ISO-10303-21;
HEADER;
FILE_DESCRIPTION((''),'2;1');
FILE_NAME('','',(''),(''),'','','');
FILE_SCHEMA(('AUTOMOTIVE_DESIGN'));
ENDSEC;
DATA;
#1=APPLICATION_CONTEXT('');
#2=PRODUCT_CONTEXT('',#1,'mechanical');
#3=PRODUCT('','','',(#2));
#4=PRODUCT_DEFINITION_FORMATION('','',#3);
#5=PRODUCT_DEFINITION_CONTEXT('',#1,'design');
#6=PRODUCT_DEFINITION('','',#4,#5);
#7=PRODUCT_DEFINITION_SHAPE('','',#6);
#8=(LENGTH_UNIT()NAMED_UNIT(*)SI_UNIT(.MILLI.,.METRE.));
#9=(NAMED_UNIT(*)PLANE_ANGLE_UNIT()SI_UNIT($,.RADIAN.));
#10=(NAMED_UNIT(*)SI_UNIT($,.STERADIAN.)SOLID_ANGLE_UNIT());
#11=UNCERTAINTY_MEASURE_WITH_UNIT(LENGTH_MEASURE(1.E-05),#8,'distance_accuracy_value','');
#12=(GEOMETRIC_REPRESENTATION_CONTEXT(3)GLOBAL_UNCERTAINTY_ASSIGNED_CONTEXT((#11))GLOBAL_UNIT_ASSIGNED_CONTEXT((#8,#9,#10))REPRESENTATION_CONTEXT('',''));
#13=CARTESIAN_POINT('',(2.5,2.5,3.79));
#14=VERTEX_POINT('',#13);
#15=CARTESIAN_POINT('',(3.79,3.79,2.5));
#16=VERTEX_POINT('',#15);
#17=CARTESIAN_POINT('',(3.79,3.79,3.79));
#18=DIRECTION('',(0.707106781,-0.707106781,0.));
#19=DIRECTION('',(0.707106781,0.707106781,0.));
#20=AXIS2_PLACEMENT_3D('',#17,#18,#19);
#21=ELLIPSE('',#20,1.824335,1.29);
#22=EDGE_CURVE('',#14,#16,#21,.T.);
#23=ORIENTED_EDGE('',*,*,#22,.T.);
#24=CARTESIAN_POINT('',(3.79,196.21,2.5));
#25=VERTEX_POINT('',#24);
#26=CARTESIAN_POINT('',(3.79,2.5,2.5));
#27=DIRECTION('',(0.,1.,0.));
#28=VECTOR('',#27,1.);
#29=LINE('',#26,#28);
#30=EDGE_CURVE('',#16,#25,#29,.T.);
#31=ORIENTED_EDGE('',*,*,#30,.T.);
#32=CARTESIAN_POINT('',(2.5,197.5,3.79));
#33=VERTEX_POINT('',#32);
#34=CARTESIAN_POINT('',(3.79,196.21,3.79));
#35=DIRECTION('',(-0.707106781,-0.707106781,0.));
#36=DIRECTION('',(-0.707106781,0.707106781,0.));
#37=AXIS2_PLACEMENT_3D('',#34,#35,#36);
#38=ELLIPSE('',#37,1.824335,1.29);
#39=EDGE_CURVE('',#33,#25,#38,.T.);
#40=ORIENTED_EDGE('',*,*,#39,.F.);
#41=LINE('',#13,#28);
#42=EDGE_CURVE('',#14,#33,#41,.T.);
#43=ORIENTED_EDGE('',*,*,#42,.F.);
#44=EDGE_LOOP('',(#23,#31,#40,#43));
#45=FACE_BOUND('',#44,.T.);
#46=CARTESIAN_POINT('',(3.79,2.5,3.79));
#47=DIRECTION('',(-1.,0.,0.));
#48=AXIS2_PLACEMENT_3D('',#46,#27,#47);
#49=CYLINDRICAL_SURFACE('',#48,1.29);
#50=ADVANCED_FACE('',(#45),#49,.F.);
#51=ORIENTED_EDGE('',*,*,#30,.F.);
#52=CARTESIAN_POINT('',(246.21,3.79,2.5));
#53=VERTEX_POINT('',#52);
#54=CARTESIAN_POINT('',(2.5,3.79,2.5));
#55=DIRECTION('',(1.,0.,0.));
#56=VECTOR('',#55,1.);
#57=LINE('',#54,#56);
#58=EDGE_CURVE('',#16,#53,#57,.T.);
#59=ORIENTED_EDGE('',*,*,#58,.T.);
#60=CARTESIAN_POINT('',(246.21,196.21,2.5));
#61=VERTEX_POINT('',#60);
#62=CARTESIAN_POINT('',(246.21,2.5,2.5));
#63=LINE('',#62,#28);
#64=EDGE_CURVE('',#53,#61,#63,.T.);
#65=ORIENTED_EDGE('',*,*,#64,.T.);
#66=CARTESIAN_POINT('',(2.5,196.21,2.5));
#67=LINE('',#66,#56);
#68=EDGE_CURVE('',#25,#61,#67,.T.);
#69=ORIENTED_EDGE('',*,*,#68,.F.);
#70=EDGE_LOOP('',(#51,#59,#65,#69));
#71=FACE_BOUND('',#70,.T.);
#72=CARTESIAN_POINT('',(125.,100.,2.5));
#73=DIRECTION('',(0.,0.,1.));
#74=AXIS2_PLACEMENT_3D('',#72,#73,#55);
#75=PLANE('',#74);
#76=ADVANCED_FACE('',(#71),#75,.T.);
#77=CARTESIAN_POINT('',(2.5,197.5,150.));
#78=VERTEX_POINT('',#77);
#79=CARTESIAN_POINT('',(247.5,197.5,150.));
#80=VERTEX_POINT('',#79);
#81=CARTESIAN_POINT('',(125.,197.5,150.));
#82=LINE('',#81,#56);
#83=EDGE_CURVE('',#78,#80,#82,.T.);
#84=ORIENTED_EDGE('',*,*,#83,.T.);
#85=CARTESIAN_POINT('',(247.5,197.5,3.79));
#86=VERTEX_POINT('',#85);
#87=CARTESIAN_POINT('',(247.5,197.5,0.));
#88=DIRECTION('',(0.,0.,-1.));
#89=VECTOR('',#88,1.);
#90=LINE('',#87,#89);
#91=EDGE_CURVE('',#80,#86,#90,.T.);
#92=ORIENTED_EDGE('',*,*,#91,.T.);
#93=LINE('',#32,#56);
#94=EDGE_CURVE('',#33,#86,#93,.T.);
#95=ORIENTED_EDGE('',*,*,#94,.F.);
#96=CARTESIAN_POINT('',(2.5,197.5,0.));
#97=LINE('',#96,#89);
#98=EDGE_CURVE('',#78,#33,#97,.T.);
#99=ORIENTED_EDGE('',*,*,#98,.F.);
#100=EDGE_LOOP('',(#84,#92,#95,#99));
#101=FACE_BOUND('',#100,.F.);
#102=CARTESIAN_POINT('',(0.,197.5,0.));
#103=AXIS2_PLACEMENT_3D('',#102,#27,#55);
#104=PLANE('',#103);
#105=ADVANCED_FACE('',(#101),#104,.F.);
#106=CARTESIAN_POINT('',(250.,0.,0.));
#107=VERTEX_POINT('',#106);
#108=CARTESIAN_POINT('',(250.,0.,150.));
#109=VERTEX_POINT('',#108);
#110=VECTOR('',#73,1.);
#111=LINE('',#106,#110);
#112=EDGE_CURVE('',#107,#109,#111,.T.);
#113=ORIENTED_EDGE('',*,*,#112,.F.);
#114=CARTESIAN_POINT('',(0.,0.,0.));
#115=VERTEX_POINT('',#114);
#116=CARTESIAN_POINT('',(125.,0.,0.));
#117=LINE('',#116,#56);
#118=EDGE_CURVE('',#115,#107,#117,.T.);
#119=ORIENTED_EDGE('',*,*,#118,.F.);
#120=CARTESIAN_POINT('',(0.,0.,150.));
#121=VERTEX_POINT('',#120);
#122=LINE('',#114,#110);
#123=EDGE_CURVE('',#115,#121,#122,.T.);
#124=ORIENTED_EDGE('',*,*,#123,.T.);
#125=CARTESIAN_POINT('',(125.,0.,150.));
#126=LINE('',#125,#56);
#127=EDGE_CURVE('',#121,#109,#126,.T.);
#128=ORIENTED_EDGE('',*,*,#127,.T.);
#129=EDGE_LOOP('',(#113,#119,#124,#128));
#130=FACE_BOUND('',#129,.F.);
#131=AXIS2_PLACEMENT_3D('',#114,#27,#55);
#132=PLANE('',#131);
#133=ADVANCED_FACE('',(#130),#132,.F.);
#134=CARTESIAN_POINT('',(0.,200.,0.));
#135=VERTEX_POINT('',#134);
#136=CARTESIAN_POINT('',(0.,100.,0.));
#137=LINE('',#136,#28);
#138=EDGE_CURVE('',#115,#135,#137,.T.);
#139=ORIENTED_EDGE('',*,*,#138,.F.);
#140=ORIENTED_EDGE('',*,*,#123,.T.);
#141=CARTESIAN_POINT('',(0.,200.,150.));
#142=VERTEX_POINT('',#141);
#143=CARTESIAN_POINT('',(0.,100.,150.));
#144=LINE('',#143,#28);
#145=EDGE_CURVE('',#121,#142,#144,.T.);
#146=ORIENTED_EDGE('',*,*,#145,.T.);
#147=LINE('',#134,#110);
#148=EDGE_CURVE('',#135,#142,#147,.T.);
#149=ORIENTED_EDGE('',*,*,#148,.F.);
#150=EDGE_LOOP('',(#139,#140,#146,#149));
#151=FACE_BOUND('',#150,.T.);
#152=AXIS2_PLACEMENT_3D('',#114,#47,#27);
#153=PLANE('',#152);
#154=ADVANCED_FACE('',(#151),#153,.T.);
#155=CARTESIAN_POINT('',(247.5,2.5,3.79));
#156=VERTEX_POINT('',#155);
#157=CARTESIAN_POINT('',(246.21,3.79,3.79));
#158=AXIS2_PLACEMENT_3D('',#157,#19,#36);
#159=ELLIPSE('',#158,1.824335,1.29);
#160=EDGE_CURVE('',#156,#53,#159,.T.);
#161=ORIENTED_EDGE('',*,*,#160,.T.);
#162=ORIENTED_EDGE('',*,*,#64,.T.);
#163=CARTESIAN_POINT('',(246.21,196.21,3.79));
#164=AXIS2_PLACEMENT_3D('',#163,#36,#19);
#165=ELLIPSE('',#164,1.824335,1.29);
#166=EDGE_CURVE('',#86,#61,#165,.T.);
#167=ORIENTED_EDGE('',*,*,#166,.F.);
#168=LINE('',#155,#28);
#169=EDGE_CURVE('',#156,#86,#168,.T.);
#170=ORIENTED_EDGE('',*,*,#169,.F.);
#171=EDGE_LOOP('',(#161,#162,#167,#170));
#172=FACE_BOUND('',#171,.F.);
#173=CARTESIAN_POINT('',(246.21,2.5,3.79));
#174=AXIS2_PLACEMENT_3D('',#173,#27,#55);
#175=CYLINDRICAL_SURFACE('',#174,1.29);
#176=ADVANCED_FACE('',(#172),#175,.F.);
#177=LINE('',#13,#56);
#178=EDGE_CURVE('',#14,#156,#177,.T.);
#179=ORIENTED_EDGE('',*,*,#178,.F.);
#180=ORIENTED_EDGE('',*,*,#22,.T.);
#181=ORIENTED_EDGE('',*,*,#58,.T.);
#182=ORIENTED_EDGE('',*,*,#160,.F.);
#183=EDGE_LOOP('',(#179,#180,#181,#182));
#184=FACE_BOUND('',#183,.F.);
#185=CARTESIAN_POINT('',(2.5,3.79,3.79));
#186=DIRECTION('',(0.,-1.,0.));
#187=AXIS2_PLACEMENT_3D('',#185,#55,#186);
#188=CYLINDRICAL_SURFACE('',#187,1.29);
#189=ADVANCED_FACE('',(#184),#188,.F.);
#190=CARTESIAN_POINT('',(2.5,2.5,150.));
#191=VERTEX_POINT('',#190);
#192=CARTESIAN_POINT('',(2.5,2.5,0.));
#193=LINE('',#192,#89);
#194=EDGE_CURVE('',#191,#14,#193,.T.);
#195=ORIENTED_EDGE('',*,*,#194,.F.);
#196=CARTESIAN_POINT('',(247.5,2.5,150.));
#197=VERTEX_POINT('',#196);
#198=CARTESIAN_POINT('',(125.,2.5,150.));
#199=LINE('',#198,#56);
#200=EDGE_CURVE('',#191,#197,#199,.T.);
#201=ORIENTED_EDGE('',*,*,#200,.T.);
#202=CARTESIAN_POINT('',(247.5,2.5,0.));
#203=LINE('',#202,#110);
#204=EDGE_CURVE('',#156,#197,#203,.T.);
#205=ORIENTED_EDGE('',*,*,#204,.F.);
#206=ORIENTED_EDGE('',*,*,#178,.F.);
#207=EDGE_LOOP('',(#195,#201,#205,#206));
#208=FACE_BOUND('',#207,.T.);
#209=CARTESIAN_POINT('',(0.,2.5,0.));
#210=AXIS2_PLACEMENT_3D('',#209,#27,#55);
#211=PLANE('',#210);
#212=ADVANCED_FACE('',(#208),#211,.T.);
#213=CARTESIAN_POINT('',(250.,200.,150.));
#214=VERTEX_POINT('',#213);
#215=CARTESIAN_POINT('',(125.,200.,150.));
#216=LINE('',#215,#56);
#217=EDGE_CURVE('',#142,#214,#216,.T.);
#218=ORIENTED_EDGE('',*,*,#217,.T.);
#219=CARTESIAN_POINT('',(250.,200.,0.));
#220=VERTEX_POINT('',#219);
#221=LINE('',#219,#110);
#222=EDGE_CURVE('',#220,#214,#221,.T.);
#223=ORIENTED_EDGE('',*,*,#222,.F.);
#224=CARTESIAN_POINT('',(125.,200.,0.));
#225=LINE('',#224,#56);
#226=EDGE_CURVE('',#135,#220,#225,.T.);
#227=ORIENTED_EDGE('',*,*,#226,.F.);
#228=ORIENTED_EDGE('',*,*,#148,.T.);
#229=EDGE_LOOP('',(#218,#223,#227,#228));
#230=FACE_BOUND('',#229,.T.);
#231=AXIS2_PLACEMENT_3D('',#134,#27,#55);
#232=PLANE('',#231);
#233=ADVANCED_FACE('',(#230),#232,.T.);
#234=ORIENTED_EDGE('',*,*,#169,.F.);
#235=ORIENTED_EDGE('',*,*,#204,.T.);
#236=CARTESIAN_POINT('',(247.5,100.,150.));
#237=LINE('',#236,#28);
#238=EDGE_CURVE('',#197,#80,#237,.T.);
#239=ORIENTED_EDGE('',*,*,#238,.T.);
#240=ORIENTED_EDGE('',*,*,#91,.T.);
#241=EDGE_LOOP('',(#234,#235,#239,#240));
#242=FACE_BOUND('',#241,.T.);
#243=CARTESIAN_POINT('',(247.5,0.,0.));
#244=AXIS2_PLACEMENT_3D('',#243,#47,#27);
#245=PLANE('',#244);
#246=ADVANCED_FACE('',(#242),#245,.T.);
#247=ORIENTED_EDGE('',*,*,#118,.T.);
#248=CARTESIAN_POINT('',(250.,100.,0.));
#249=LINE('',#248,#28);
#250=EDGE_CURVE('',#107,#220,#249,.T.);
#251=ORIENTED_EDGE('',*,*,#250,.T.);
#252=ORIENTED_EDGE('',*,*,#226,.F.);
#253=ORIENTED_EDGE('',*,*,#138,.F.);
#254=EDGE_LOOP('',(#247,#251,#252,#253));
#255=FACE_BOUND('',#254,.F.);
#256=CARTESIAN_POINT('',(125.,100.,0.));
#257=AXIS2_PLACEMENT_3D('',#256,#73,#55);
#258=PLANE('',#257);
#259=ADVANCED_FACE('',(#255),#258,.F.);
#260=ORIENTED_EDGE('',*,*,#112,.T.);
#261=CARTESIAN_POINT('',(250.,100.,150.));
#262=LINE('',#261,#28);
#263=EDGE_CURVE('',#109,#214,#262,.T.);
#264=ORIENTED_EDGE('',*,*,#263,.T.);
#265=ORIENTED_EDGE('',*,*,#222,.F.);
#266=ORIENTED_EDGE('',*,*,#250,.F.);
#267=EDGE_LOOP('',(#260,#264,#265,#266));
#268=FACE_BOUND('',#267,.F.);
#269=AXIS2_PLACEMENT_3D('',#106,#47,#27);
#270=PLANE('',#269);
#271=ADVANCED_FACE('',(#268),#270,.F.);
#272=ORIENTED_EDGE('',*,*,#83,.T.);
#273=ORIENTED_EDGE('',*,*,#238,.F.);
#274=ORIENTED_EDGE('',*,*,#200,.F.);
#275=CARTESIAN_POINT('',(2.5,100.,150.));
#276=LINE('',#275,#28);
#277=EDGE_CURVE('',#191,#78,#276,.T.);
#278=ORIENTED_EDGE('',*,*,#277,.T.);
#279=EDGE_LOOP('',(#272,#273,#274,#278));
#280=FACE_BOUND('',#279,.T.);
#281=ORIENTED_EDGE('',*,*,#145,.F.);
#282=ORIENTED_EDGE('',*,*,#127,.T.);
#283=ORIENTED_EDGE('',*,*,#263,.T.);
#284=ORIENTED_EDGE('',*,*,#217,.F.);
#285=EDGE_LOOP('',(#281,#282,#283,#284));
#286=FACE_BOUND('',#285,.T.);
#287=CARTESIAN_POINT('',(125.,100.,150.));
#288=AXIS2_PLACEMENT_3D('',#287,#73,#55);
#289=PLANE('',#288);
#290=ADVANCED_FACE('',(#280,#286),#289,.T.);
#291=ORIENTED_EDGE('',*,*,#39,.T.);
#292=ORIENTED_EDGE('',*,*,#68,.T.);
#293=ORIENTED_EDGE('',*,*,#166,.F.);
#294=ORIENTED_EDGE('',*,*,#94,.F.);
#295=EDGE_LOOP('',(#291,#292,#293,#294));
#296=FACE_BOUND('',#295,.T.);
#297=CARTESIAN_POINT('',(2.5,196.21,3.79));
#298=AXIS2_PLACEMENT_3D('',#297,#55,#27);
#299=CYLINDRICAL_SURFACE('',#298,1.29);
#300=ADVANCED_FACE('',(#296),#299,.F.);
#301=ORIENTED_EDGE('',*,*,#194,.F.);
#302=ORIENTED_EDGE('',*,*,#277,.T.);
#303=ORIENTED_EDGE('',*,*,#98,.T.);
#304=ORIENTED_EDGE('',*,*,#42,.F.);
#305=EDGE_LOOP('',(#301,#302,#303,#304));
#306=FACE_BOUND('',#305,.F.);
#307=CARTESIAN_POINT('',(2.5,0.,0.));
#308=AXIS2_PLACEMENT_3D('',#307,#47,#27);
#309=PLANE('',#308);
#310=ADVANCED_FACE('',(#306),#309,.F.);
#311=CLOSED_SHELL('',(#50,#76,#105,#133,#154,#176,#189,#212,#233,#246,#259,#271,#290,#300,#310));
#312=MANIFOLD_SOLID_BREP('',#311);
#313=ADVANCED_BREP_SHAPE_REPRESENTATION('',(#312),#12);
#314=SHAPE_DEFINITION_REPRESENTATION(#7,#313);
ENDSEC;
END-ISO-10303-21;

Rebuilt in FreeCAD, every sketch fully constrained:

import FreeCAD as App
import Part
import Sketcher
from FreeCAD import Vector
Q = App.Units.Quantity


def edges_at(feature, points):
    """Names of the edges that pass closest to the given points."""
    edges = feature.Shape.Edges
    near = lambda p: min(range(len(edges)), key=lambda i: edges[i].distToShape(Part.Vertex(*p))[0])
    return sorted({f"Edge{near(p) + 1}" for p in points})


def faces_at(feature, points):
    """Names of the faces that lie closest to the given points."""
    faces = feature.Shape.Faces
    near = lambda p: min(range(len(faces)), key=lambda i: faces[i].distToShape(Part.Vertex(*p))[0])
    return sorted({f"Face{near(p) + 1}" for p in points})

doc = App.newDocument("Part")
body = doc.addObject("PartDesign::Body", "Body")

# Sketch on XY plane
sketch1 = body.newObject("Sketcher::SketchObject", "Sketch")
sketch1.AttachmentSupport = (doc.getObject("XY_Plane"), [""])
sketch1.MapMode = "FlatFace"
sketch1.addGeometry([
    Part.LineSegment(Vector(0, 200, 0), Vector(0, 0, 0)),
    Part.LineSegment(Vector(0, 0, 0), Vector(250, 0, 0)),
    Part.LineSegment(Vector(250, 0, 0), Vector(250, 200, 0)),
    Part.LineSegment(Vector(250, 200, 0), Vector(0, 200, 0)),
], False)
sketch1.addConstraint([
    Sketcher.Constraint("Coincident", 0, 2, 1, 1),
    Sketcher.Constraint("Coincident", 1, 2, 2, 1),
    Sketcher.Constraint("Coincident", 2, 2, 3, 1),
    Sketcher.Constraint("Coincident", 3, 2, 0, 1),
    Sketcher.Constraint("Vertical", 0),
    Sketcher.Constraint("Horizontal", 1),
    Sketcher.Constraint("Vertical", 2),
    Sketcher.Constraint("Horizontal", 3),
    Sketcher.Constraint("Coincident", 0, 2, -1, 1),
    Sketcher.Constraint("DistanceX", 1, 1, 1, 2, Q("250 mm")),
    Sketcher.Constraint("DistanceY", 0, 2, 0, 1, Q("200 mm")),
])
pad1 = body.newObject("PartDesign::Pad", "Pad")
pad1.Profile = sketch1
pad1.Length = 150
doc.recompute()

thickness = body.newObject("PartDesign::Thickness", "Thickness")
thickness.Base = (pad1, faces_at(pad1, [(125, 100, 150)]))
thickness.Value = 2.5
thickness.Reversed = True
thickness.Join = "Arc"
doc.recompute()

fillet = body.newObject("PartDesign::Fillet", "Fillet")
fillet.Base = (thickness, edges_at(thickness, [
    (2.5, 100, 2.5),
    (125, 197.5, 2.5),
    (247.5, 100, 2.5),
    (125, 2.5, 2.5),
]))
fillet.Radius = 1.29

doc.recompute()
